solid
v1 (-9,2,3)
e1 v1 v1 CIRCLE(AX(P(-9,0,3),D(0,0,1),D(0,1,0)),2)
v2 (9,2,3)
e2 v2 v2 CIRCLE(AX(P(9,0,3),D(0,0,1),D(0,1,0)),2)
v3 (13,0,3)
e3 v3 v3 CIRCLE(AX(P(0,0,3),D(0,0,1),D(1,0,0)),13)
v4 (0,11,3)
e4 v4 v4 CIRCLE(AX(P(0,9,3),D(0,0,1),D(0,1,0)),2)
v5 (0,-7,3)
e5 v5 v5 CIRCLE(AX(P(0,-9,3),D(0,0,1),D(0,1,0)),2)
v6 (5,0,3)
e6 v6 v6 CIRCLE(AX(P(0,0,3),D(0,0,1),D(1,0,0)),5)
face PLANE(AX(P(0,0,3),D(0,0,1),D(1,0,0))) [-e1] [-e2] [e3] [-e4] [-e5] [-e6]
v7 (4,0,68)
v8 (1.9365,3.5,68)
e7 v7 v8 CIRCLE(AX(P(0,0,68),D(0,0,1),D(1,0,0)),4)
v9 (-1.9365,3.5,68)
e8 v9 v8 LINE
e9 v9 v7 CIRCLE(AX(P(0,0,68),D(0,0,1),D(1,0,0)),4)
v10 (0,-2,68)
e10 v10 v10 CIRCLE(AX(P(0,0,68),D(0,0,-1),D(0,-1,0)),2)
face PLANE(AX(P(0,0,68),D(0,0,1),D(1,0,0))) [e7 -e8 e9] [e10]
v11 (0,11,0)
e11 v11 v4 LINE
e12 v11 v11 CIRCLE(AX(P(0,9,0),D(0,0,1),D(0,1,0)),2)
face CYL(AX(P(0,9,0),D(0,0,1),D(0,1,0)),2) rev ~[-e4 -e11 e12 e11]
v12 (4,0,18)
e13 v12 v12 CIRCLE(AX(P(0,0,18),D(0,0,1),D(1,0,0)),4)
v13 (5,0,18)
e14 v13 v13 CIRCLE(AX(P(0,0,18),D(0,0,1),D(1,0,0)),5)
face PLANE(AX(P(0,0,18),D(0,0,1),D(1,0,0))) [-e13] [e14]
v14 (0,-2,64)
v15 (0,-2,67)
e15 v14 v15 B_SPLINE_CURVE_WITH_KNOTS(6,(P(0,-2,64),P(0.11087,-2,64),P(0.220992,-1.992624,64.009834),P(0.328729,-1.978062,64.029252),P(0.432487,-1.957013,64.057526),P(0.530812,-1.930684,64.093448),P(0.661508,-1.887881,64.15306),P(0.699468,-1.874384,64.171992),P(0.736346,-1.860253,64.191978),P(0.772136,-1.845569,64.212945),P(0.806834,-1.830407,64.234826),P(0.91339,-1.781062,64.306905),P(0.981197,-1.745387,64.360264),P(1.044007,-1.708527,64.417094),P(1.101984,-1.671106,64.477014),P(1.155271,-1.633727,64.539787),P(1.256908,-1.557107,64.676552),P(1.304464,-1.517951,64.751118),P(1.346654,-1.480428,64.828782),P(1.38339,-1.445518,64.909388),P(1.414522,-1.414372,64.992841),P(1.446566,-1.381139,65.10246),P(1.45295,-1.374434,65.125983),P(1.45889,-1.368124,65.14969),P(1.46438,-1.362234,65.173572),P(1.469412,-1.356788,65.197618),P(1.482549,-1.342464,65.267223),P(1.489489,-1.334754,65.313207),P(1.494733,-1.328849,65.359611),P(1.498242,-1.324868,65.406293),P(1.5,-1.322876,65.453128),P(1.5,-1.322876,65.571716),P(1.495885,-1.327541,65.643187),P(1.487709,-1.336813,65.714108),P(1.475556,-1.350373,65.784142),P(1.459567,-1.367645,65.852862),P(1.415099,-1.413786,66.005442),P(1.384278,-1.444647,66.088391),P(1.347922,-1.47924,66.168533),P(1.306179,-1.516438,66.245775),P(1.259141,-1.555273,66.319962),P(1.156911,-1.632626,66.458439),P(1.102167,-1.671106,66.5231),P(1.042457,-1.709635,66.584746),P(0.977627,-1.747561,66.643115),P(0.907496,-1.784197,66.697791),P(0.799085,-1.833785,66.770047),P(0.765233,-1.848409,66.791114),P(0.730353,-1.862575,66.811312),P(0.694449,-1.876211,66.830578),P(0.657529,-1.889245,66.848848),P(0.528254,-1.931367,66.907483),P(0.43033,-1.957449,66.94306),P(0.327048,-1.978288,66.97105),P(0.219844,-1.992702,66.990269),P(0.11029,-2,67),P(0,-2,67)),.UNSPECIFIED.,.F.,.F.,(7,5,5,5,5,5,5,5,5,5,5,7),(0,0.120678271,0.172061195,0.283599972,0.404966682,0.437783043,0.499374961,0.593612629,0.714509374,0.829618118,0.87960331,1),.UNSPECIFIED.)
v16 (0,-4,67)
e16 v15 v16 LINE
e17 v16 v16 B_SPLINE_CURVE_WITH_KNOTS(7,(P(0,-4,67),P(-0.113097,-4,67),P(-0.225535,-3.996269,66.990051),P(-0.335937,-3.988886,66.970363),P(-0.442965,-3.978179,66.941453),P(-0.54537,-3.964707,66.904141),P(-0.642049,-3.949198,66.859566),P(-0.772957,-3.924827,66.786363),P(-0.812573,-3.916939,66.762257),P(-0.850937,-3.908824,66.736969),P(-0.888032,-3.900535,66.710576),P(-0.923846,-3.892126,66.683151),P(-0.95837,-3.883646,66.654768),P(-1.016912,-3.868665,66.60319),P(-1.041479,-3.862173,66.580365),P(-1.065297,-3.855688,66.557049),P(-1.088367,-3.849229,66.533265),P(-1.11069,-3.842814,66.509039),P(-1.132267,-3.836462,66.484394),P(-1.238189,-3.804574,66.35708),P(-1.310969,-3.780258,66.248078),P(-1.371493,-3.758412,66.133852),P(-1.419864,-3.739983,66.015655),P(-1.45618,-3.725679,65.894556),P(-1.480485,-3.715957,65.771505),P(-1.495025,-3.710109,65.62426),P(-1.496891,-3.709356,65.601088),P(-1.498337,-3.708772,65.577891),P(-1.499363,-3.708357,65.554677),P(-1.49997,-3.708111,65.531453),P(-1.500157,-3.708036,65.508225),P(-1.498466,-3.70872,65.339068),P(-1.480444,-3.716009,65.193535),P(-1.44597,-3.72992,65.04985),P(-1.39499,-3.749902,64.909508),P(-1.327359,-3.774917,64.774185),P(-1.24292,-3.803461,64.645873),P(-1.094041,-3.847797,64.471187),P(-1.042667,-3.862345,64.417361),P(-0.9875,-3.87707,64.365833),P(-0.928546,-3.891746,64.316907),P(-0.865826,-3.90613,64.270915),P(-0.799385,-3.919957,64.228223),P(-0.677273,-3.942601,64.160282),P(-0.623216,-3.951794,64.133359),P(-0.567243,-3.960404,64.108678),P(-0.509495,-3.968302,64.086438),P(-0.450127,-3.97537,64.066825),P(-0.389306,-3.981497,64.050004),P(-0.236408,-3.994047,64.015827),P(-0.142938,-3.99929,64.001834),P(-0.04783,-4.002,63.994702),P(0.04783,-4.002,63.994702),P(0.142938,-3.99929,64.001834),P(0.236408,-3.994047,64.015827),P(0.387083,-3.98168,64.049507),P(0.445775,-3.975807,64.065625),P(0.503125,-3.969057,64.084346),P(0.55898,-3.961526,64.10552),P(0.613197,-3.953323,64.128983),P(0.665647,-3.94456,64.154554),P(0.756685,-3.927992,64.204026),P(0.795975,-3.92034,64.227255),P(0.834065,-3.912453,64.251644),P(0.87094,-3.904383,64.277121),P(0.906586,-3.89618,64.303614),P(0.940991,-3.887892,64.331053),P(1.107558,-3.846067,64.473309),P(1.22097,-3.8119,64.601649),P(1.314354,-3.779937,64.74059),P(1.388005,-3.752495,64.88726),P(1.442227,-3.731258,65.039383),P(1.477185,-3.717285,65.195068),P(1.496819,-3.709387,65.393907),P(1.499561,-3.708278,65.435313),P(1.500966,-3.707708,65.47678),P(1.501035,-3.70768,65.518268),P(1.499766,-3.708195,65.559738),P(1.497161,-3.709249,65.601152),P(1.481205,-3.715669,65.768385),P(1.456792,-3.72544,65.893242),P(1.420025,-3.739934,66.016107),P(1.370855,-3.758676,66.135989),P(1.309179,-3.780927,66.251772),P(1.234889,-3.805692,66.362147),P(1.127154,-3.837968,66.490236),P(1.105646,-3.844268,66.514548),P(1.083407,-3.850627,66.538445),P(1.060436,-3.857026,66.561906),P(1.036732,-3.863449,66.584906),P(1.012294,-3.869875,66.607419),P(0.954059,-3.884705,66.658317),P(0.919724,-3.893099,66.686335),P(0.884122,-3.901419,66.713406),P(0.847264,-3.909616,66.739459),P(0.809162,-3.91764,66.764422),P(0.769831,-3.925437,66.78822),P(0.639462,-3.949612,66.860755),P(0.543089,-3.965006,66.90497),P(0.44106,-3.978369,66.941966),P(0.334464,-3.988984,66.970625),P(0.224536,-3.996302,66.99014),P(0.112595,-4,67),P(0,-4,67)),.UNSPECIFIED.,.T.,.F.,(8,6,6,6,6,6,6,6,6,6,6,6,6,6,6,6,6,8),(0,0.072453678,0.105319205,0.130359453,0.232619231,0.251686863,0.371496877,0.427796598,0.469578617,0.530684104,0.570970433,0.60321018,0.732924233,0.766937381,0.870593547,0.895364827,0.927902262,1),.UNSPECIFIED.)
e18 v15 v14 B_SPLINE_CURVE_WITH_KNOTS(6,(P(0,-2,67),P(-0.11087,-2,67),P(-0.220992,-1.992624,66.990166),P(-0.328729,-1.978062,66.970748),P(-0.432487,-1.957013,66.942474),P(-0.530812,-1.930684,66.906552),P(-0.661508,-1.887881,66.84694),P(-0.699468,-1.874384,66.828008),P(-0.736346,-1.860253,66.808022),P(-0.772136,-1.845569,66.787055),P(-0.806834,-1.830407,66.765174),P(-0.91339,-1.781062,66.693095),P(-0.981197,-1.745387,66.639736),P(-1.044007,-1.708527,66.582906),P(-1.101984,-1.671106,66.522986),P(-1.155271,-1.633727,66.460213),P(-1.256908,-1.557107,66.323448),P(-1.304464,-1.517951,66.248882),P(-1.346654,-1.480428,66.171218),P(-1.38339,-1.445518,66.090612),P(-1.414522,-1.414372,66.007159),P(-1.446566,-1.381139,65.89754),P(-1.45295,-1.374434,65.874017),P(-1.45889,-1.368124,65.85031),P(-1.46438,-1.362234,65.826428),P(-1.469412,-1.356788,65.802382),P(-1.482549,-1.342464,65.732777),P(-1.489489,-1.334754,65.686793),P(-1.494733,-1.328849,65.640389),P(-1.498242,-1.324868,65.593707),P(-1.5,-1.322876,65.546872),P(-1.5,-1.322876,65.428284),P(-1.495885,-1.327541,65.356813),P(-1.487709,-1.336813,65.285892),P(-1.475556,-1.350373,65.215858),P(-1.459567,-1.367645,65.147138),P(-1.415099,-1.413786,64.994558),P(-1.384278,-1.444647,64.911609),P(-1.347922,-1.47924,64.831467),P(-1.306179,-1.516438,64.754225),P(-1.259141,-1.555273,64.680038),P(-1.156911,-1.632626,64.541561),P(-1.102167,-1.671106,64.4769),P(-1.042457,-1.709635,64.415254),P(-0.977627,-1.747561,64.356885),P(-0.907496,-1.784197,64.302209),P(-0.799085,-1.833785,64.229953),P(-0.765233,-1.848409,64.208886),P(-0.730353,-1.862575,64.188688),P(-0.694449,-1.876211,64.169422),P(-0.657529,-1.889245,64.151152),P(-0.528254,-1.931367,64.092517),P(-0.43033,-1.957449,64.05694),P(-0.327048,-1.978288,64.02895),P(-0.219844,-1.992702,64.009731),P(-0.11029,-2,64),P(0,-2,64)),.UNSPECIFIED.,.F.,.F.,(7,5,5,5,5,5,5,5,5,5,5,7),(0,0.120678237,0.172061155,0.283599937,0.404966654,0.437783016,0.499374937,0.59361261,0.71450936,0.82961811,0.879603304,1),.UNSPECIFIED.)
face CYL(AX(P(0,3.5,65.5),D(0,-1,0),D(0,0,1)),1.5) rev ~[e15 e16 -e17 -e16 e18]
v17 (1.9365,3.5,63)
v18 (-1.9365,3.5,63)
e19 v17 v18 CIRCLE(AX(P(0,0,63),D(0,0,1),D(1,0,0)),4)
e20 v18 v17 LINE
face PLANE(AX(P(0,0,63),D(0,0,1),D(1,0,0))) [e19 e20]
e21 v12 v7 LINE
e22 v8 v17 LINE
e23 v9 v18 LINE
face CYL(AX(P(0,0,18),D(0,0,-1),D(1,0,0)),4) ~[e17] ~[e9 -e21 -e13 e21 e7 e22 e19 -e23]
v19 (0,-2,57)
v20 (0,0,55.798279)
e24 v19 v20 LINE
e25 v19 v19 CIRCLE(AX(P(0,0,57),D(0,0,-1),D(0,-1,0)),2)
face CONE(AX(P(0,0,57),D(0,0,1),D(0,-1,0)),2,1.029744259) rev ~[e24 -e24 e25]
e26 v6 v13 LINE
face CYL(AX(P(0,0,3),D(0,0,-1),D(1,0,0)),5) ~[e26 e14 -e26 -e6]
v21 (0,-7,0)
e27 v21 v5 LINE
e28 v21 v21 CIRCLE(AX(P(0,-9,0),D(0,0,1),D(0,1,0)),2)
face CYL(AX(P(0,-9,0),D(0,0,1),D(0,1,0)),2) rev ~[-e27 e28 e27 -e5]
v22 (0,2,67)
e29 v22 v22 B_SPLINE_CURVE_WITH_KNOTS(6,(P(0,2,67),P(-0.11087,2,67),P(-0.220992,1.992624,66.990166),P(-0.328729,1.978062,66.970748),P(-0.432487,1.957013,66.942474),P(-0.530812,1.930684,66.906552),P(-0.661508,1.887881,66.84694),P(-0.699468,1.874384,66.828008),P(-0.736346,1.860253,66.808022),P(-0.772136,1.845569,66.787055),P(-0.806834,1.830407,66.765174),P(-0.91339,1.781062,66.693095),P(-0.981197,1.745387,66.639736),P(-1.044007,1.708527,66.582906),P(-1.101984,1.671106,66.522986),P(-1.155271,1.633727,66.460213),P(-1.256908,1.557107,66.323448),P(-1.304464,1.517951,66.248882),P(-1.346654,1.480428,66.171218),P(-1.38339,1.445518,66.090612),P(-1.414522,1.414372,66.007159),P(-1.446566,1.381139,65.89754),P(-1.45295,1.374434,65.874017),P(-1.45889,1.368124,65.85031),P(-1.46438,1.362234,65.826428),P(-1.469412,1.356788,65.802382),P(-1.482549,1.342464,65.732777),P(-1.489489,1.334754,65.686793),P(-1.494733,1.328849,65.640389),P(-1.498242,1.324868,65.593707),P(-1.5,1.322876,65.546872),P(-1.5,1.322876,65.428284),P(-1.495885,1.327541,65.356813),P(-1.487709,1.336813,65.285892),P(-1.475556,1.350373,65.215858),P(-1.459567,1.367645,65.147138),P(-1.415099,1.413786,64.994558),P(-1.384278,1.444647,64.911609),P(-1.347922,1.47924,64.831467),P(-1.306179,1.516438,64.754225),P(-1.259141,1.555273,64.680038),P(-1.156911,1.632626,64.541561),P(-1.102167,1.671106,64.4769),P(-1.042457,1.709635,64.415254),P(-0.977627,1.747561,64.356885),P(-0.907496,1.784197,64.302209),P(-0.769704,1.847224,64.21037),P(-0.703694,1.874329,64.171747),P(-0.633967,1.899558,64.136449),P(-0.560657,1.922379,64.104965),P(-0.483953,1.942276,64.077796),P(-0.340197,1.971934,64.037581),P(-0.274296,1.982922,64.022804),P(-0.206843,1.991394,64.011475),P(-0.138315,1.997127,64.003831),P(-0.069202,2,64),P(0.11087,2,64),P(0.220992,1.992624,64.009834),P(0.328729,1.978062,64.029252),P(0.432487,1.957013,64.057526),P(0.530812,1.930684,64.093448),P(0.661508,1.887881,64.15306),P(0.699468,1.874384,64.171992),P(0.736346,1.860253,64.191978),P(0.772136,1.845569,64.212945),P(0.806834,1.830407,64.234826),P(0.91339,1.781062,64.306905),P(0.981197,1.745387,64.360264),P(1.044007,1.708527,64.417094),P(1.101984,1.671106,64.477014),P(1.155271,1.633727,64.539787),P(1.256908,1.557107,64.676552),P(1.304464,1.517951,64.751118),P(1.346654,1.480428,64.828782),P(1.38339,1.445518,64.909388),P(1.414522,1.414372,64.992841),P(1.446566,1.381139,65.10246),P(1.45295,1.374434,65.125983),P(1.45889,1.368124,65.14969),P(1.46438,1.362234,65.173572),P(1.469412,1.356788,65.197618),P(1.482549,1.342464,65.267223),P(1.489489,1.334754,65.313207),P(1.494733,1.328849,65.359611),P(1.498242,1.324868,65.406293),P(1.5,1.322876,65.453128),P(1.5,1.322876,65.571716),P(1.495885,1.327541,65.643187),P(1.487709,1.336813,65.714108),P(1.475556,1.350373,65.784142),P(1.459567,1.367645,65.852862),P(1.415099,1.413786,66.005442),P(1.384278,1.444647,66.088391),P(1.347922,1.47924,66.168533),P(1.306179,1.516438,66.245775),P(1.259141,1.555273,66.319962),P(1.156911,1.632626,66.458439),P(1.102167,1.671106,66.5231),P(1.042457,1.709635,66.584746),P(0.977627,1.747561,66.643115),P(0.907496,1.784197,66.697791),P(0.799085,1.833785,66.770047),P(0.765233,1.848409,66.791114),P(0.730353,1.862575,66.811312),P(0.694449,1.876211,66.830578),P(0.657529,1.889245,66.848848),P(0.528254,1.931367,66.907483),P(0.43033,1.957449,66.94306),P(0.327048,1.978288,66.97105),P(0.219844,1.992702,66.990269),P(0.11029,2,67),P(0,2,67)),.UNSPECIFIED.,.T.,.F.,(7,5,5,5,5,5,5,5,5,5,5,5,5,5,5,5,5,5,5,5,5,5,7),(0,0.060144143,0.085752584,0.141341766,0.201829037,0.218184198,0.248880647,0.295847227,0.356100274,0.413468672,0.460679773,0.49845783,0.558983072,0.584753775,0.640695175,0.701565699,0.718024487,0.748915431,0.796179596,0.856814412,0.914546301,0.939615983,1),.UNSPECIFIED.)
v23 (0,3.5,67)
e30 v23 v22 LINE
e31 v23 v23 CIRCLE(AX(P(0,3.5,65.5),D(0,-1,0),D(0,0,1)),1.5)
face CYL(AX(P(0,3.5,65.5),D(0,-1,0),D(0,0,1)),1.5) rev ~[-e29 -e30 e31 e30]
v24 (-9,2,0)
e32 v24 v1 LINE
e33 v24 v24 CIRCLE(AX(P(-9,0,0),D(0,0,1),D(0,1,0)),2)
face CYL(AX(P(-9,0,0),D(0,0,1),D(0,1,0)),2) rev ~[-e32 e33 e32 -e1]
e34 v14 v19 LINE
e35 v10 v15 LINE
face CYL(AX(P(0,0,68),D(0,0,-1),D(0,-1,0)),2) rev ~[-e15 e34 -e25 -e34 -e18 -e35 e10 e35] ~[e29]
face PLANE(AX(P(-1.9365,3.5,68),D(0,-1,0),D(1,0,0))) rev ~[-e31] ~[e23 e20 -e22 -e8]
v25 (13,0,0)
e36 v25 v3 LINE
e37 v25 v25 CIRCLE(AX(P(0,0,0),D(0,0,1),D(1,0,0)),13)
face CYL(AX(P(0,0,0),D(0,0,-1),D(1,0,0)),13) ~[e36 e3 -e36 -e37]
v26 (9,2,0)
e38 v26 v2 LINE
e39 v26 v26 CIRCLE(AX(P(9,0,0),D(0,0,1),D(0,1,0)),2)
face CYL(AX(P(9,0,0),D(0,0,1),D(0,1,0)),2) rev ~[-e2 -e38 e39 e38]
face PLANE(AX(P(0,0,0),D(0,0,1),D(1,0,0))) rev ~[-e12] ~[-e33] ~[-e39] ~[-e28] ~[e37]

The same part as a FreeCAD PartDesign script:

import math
import FreeCAD as App
import Part
import Sketcher
Q = App.Units.Quantity

doc = App.newDocument("Part")
body = doc.addObject("PartDesign::Body", "Body")

# Sketch on XY plane
sketch1 = body.newObject("Sketcher::SketchObject", "Sketch")
sketch1.AttachmentSupport = (doc.getObject("XY_Plane"), [""])
sketch1.MapMode = "FlatFace"
sketch1.addGeometry(Part.Circle(App.Vector(0, 0, 0), App.Vector(0, 0, 1), 13), False)
sketch1.addConstraint([
    Sketcher.Constraint("Coincident", 0, 3, -1, 1),
    Sketcher.Constraint("Diameter", 0, Q("26 mm")),
])
pad1 = body.newObject("PartDesign::Pad", "Pad")
pad1.Profile = sketch1
pad1.Length = 3

# Sketch on XY plane
sketch2 = body.newObject("Sketcher::SketchObject", "Sketch001")
sketch2.AttachmentSupport = (doc.getObject("XY_Plane"), [""])
sketch2.MapMode = "FlatFace"
sketch2.AttachmentOffset = App.Placement(App.Vector(0, 0, 3), App.Rotation())
sketch2.addGeometry(Part.Circle(App.Vector(0, 0, 0), App.Vector(0, 0, 1), 5), False)
sketch2.addConstraint([
    Sketcher.Constraint("Coincident", 0, 3, -1, 1),
    Sketcher.Constraint("Diameter", 0, Q("10 mm")),
])
pad2 = body.newObject("PartDesign::Pad", "Pad001")
pad2.Profile = sketch2
pad2.Length = 15

# Sketch on XY plane
sketch3 = body.newObject("Sketcher::SketchObject", "Sketch002")
sketch3.AttachmentSupport = (doc.getObject("XY_Plane"), [""])
sketch3.MapMode = "FlatFace"
sketch3.AttachmentOffset = App.Placement(App.Vector(0, 0, 18), App.Rotation())
sketch3.addGeometry(Part.Circle(App.Vector(0, 0, 0), App.Vector(0, 0, 1), 4), False)
sketch3.addConstraint([
    Sketcher.Constraint("Coincident", 0, 3, -1, 1),
    Sketcher.Constraint("Diameter", 0, Q("8 mm")),
])
pad3 = body.newObject("PartDesign::Pad", "Pad002")
pad3.Profile = sketch3
pad3.Length = 50

# Sketch on XY plane
sketch4 = body.newObject("Sketcher::SketchObject", "Sketch003")
sketch4.AttachmentSupport = (doc.getObject("XY_Plane"), [""])
sketch4.MapMode = "FlatFace"
sketch4.AttachmentOffset = App.Placement(App.Vector(0, 0, 68), App.Rotation())
sketch4.addGeometry([
    Part.LineSegment(App.Vector(-1.9, 3.5, 0), App.Vector(1.9, 3.5, 0)),
    Part.ArcOfCircle(Part.Circle(App.Vector(0, 0, 0), App.Vector(0, 0, 1), 4), math.radians(61), math.radians(119)),
], False)
sketch4.addConstraint([
    Sketcher.Constraint("Coincident", 0, 1, 1, 2),
    Sketcher.Constraint("Coincident", 1, 1, 0, 2),
    Sketcher.Constraint("Horizontal", 0),
    Sketcher.Constraint("Coincident", 1, 3, -1, 1),
    Sketcher.Constraint("Radius", 1, Q("4 mm")),
    Sketcher.Constraint("DistanceY", -1, 1, 0, 1, Q("3.5 mm")),
])
pocket1 = body.newObject("PartDesign::Pocket", "Pocket")
pocket1.Profile = sketch4
pocket1.Length = 5

# Sketch on XZ plane
sketch5 = body.newObject("Sketcher::SketchObject", "Sketch004")
sketch5.AttachmentSupport = (doc.getObject("XZ_Plane"), [""])
sketch5.MapMode = "FlatFace"
sketch5.AttachmentOffset = App.Placement(App.Vector(0, 0, -3.5), App.Rotation())
sketch5.addGeometry(Part.Circle(App.Vector(0, 65.5, 0), App.Vector(0, 0, 1), 1.5), False)
sketch5.addConstraint([
    Sketcher.Constraint("PointOnObject", 0, 3, -2),
    Sketcher.Constraint("Diameter", 0, Q("3 mm")),
    Sketcher.Constraint("DistanceY", -1, 1, 0, 3, Q("65.5 mm")),
])
doc.recompute()
hole = body.newObject("PartDesign::Hole", "Hole")
hole.Profile = sketch5
hole.ThreadType = "None"
hole.Diameter = 3
hole.DepthType = "Dimension"
hole.Depth = 20
hole.DrillPoint = "Angled"
hole.DrillPointAngle = 118
hole.Reversed = True

# Sketch on XY plane
sketch6 = body.newObject("Sketcher::SketchObject", "Sketch005")
sketch6.AttachmentSupport = (doc.getObject("XY_Plane"), [""])
sketch6.MapMode = "FlatFace"
sketch6.AttachmentOffset = App.Placement(App.Vector(0, 0, 68), App.Rotation())
sketch6.addGeometry(Part.Circle(App.Vector(0, 0, 0), App.Vector(0, 0, 1), 2), False)
sketch6.addConstraint([
    Sketcher.Constraint("Coincident", 0, 3, -1, 1),
    Sketcher.Constraint("Diameter", 0, Q("4 mm")),
])
doc.recompute()
hole2 = body.newObject("PartDesign::Hole", "Hole001")
hole2.Profile = sketch6
hole2.ThreadType = "None"
hole2.Diameter = 4
hole2.DepthType = "Dimension"
hole2.Depth = 11
hole2.DrillPoint = "Angled"
hole2.DrillPointAngle = 118

# Sketch on XY plane
sketch7 = body.newObject("Sketcher::SketchObject", "Sketch006")
sketch7.AttachmentSupport = (doc.getObject("XY_Plane"), [""])
sketch7.MapMode = "FlatFace"
sketch7.addGeometry([
    Part.Circle(App.Vector(9, 0, 0), App.Vector(0, 0, 1), 2),
    Part.Circle(App.Vector(-9, 0, 0), App.Vector(0, 0, 1), 2),
    Part.Circle(App.Vector(0, -9, 0), App.Vector(0, 0, 1), 2),
    Part.Circle(App.Vector(0, 9, 0), App.Vector(0, 0, 1), 2),
], False)
sketch7.addConstraint([
    Sketcher.Constraint("Equal", 0, 1),
    Sketcher.Constraint("Equal", 1, 2),
    Sketcher.Constraint("Equal", 2, 3),
    Sketcher.Constraint("Symmetric", 0, 3, 1, 3, -1, 1),
    Sketcher.Constraint("Symmetric", 2, 3, 3, 3, -1, 1),
    Sketcher.Constraint("PointOnObject", 0, 3, -1),
    Sketcher.Constraint("PointOnObject", 2, 3, -2),
    Sketcher.Constraint("Diameter", 0, Q("4 mm")),
    Sketcher.Constraint("DistanceX", -1, 1, 0, 3, Q("9 mm")),
    Sketcher.Constraint("DistanceY", 2, 3, -1, 1, Q("9 mm")),
])
doc.recompute()
hole3 = body.newObject("PartDesign::Hole", "Hole002")
hole3.Profile = sketch7
hole3.ThreadType = "None"
hole3.Diameter = 4
hole3.DepthType = "Dimension"
hole3.Depth = 8
hole3.DrillPoint = "Angled"
hole3.DrillPointAngle = 118
hole3.Reversed = True

doc.recompute()
